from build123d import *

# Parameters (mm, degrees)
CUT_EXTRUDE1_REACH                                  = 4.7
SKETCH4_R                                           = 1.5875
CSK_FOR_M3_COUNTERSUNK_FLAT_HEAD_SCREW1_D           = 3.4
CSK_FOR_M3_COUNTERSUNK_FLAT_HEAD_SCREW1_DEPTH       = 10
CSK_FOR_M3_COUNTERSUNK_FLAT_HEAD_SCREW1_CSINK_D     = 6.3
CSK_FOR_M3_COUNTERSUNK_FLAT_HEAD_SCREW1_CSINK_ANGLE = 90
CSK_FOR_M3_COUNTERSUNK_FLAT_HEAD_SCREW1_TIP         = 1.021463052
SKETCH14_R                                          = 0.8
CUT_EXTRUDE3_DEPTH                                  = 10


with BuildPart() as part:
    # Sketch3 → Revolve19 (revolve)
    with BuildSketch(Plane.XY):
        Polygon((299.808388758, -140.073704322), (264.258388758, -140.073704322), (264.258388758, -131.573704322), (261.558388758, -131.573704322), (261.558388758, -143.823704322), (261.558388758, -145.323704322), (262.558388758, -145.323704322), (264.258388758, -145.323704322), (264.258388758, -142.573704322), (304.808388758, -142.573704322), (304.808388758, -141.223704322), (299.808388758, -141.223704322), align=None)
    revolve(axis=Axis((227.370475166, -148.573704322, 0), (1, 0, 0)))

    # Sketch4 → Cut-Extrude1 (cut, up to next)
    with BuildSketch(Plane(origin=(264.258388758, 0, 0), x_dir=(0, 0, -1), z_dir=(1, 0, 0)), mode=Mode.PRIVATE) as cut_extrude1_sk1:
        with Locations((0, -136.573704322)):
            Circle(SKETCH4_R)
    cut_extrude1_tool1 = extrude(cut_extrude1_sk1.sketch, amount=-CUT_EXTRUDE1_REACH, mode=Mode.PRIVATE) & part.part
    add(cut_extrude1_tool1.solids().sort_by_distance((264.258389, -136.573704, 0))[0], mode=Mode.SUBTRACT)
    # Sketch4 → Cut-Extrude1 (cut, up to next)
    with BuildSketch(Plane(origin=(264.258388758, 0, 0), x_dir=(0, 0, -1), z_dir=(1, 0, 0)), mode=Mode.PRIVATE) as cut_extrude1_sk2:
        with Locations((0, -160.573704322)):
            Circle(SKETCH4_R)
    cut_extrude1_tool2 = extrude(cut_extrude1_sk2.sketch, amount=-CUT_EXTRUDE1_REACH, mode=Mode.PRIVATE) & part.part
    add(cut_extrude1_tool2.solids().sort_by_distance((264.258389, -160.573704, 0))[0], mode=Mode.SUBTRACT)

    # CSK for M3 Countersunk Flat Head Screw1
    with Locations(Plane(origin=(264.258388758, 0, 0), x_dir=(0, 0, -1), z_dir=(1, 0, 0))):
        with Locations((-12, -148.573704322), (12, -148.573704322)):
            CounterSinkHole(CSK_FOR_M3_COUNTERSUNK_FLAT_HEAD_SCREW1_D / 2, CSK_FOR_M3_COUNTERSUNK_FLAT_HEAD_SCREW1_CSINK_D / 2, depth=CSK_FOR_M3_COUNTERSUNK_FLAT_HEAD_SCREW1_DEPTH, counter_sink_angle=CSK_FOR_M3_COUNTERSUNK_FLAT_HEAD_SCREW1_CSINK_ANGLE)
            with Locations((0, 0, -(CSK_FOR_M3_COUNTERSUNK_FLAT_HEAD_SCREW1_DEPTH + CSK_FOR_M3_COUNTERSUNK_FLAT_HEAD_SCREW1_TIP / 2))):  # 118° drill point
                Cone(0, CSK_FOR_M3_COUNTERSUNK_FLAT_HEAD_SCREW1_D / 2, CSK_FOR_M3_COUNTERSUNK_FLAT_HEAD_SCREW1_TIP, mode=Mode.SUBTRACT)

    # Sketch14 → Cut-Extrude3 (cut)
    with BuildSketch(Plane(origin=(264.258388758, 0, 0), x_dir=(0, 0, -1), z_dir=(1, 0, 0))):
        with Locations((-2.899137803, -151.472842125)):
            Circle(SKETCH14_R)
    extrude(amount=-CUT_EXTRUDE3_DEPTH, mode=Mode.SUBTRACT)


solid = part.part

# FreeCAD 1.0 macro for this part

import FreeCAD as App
import Part
import Sketcher
Q = App.Units.Quantity

doc = App.newDocument("Part")
body = doc.addObject("PartDesign::Body", "Body")

# Sketch on XY plane
sketch1 = body.newObject("Sketcher::SketchObject", "Sketch")
sketch1.AttachmentSupport = (doc.getObject("XY_Plane"), [""])
sketch1.MapMode = "FlatFace"
sketch1.addGeometry([
    Part.LineSegment(App.Vector(299.8, -140.1, 0), App.Vector(264.3, -140.1, 0)),  # 0
    Part.LineSegment(App.Vector(264.3, -140.1, 0), App.Vector(264.3, -131.6, 0)),  # 1
    Part.LineSegment(App.Vector(264.3, -131.6, 0), App.Vector(261.6, -131.6, 0)),  # 2
    Part.LineSegment(App.Vector(261.6, -131.6, 0), App.Vector(261.6, -145.3, 0)),  # 3
    Part.LineSegment(App.Vector(261.6, -145.3, 0), App.Vector(264.3, -145.3, 0)),  # 4
    Part.LineSegment(App.Vector(264.3, -145.3, 0), App.Vector(264.3, -142.6, 0)),  # 5
    Part.LineSegment(App.Vector(264.3, -142.6, 0), App.Vector(304.8, -142.6, 0)),  # 6
    Part.LineSegment(App.Vector(304.8, -142.6, 0), App.Vector(304.8, -141.2, 0)),  # 7
    Part.LineSegment(App.Vector(304.8, -141.2, 0), App.Vector(299.8, -141.2, 0)),  # 8
    Part.LineSegment(App.Vector(299.8, -141.2, 0), App.Vector(299.8, -140.1, 0)),  # 9
], False)
sketch1.addGeometry(Part.LineSegment(App.Vector(261.6, -148.6, 0), App.Vector(304.8, -148.6, 0)), True)  # axis
sketch1.addConstraint([
    Sketcher.Constraint("Coincident", 0, 2, 1, 1),
    Sketcher.Constraint("Coincident", 1, 2, 2, 1),
    Sketcher.Constraint("Coincident", 2, 2, 3, 1),
    Sketcher.Constraint("Coincident", 3, 2, 4, 1),
    Sketcher.Constraint("Coincident", 4, 2, 5, 1),
    Sketcher.Constraint("Coincident", 5, 2, 6, 1),
    Sketcher.Constraint("Coincident", 6, 2, 7, 1),
    Sketcher.Constraint("Coincident", 7, 2, 8, 1),
    Sketcher.Constraint("Coincident", 8, 2, 9, 1),
    Sketcher.Constraint("Coincident", 9, 2, 0, 1),
    Sketcher.Constraint("Horizontal", 0),
    Sketcher.Constraint("Vertical", 1),
    Sketcher.Constraint("Horizontal", 2),
    Sketcher.Constraint("Vertical", 3),
    Sketcher.Constraint("Horizontal", 4),
    Sketcher.Constraint("Vertical", 5),
    Sketcher.Constraint("Horizontal", 6),
    Sketcher.Constraint("Vertical", 7),
    Sketcher.Constraint("Horizontal", 8),
    Sketcher.Constraint("Vertical", 9),
    Sketcher.Constraint("Horizontal", 10),
    Sketcher.Constraint("Vertical", 1, 2, 4, 2),
    Sketcher.Constraint("Vertical", 3, 2, 10, 1),
    Sketcher.Constraint("Vertical", 7, 2, 10, 2),
    Sketcher.Constraint("DistanceX", 8, 2, 8, 1, Q("5 mm")),
    Sketcher.Constraint("DistanceX", 2, 2, 2, 1, Q("2.7 mm")),
    Sketcher.Constraint("DistanceY", 1, 1, 1, 2, Q("8.5 mm")),
    Sketcher.Constraint("DistanceY", 5, 2, 1, 2, Q("11 mm")),
    Sketcher.Constraint("DistanceY", 10, 1, 5, 2, Q("6 mm")),
    Sketcher.Constraint("DistanceX", 0, 2, 0, 1, Q("35.55 mm")),
    Sketcher.Constraint("DistanceY", 3, 2, 3, 1, Q("13.75 mm")),
    Sketcher.Constraint("DistanceY", 7, 1, 7, 2, Q("1.35 mm")),
    Sketcher.Constraint("DistanceX", -1, 1, 0, 2, Q("264.258389 mm")),
    Sketcher.Constraint("DistanceY", 0, 2, -1, 1, Q("140.073704 mm")),
])
revolution = body.newObject("PartDesign::Revolution", "Revolution")
revolution.Profile = sketch1
revolution.ReferenceAxis = (sketch1, ["Axis0"])
revolution.Angle = 360

# Sketch on YZ plane
sketch2 = body.newObject("Sketcher::SketchObject", "Sketch001")
sketch2.AttachmentSupport = (doc.getObject("YZ_Plane"), [""])
sketch2.MapMode = "FlatFace"
sketch2.AttachmentOffset = App.Placement(App.Vector(0, 0, 264.258389), App.Rotation())
sketch2.addGeometry(Part.Circle(App.Vector(-136.6, 0, 0), App.Vector(0, 0, 1), 1.6), False)
sketch2.addConstraint([
    Sketcher.Constraint("PointOnObject", 0, 3, -1),
    Sketcher.Constraint("Diameter", 0, Q("3.175 mm")),
    Sketcher.Constraint("DistanceX", 0, 3, -1, 1, Q("136.573704 mm")),
])
pocket1 = body.newObject("PartDesign::Pocket", "Pocket")
pocket1.Profile = sketch2
pocket1.Type = "UpToFirst"

# Sketch on YZ plane
sketch3 = body.newObject("Sketcher::SketchObject", "Sketch002")
sketch3.AttachmentSupport = (doc.getObject("YZ_Plane"), [""])
sketch3.MapMode = "FlatFace"
sketch3.AttachmentOffset = App.Placement(App.Vector(0, 0, 264.258389), App.Rotation())
sketch3.addGeometry(Part.Circle(App.Vector(-160.6, 0, 0), App.Vector(0, 0, 1), 1.6), False)
sketch3.addConstraint([
    Sketcher.Constraint("PointOnObject", 0, 3, -1),
    Sketcher.Constraint("Diameter", 0, Q("3.175 mm")),
    Sketcher.Constraint("DistanceX", 0, 3, -1, 1, Q("160.573704 mm")),
])
pocket2 = body.newObject("PartDesign::Pocket", "Pocket001")
pocket2.Profile = sketch3
pocket2.Type = "UpToFirst"

# Sketch on YZ plane
sketch4 = body.newObject("Sketcher::SketchObject", "Sketch003")
sketch4.AttachmentSupport = (doc.getObject("YZ_Plane"), [""])
sketch4.MapMode = "FlatFace"
sketch4.AttachmentOffset = App.Placement(App.Vector(0, 0, 264.258389), App.Rotation())
sketch4.addGeometry([
    Part.Circle(App.Vector(-148.6, 12, 0), App.Vector(0, 0, 1), 1.7),
    Part.Circle(App.Vector(-148.6, -12, 0), App.Vector(0, 0, 1), 1.7),
], False)
sketch4.addConstraint([
    Sketcher.Constraint("Equal", 0, 1),
    Sketcher.Constraint("Symmetric", 0, 3, 1, 3, -1),
    Sketcher.Constraint("Diameter", 0, Q("3.4 mm")),
    Sketcher.Constraint("DistanceY", -1, 1, 0, 3, Q("12 mm")),
    Sketcher.Constraint("DistanceX", 0, 3, -1, 1, Q("148.573704 mm")),
])
doc.recompute()
hole = body.newObject("PartDesign::Hole", "Hole")
hole.Profile = sketch4
hole.ThreadType = "None"
hole.Diameter = 3.4
hole.DepthType = "Dimension"
hole.Depth = 10
hole.DrillPoint = "Angled"
hole.DrillPointAngle = 118
hole.HoleCutType = "Countersink"
hole.HoleCutDiameter = 6.3
hole.HoleCutCountersinkAngle = 90

# Sketch on YZ plane
sketch5 = body.newObject("Sketcher::SketchObject", "Sketch004")
sketch5.AttachmentSupport = (doc.getObject("YZ_Plane"), [""])
sketch5.MapMode = "FlatFace"
sketch5.AttachmentOffset = App.Placement(App.Vector(0, 0, 264.258389), App.Rotation())
sketch5.addGeometry(Part.Circle(App.Vector(-151.5, 2.9, 0), App.Vector(0, 0, 1), 0.8), False)
sketch5.addConstraint([
    Sketcher.Constraint("Diameter", 0, Q("1.6 mm")),
    Sketcher.Constraint("DistanceX", 0, 3, -1, 1, Q("151.472842 mm")),
    Sketcher.Constraint("DistanceY", -1, 1, 0, 3, Q("2.899138 mm")),
])
pocket3 = body.newObject("PartDesign::Pocket", "Pocket002")
pocket3.Profile = sketch5
pocket3.Length = 10

doc.recompute()
